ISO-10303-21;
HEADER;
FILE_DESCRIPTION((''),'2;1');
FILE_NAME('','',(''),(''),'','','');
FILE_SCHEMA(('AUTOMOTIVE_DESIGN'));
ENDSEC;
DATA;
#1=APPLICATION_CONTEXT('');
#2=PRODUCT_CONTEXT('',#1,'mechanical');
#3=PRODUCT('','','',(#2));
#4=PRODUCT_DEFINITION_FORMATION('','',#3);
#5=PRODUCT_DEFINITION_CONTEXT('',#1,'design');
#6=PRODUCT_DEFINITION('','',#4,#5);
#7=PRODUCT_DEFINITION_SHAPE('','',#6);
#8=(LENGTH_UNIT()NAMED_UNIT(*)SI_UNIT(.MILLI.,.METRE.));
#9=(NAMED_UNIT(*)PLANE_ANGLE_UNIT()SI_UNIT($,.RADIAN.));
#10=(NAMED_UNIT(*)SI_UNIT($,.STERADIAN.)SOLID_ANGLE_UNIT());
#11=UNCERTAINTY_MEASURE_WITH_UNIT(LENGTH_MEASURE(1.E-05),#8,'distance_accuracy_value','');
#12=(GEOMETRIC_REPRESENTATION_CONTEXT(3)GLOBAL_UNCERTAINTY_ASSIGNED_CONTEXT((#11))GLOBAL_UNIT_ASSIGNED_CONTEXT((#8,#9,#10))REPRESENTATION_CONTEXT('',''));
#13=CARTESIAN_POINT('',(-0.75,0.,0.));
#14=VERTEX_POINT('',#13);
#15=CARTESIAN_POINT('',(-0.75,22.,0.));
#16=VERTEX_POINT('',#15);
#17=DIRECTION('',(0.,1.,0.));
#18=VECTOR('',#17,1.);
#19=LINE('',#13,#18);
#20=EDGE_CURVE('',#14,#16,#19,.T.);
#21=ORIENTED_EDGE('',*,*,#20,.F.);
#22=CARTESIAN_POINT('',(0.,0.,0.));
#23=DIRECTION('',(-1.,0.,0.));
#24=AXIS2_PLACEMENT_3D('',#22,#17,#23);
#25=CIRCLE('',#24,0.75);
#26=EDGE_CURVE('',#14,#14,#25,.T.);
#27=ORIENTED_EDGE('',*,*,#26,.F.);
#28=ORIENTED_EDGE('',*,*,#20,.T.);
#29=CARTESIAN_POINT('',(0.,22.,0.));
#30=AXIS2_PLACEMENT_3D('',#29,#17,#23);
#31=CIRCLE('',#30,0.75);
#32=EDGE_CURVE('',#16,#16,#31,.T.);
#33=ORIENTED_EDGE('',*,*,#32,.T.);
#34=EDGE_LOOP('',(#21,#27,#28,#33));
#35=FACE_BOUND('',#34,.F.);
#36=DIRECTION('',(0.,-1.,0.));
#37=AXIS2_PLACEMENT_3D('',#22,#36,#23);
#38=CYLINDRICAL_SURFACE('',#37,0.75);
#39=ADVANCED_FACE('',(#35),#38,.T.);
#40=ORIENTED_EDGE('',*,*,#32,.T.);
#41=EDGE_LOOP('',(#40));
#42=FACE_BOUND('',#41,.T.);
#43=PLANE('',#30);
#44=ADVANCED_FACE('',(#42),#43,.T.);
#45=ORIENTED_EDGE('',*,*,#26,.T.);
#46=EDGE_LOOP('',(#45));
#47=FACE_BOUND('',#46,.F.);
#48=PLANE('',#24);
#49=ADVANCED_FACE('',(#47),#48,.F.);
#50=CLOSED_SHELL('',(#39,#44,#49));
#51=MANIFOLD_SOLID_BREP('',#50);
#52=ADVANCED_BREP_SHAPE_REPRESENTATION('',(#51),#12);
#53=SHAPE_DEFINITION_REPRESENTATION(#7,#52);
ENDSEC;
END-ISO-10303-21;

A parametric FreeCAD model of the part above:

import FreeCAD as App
import Part
import Sketcher
Q = App.Units.Quantity

doc = App.newDocument("Part")
params = doc.addObject("Spreadsheet::Sheet", "Params")
for row, (alias, value) in enumerate([
    ("sketch1_diameter", "1.5 mm"),
    ("pad1_length", "22 mm"),
], start=1):
    params.set(f"A{row}", alias)
    params.set(f"B{row}", "=" + value)
    params.setAlias(f"B{row}", alias)

body = doc.addObject("PartDesign::Body", "Body")

# Sketch on XZ plane
sketch1 = body.newObject("Sketcher::SketchObject", "Sketch")
sketch1.AttachmentSupport = (doc.getObject("XZ_Plane"), [""])
sketch1.MapMode = "FlatFace"
sketch1.addGeometry(Part.Circle(App.Vector(0, 0, 0), App.Vector(0, 0, 1), 0.8), False)
sketch1.addConstraint([
    Sketcher.Constraint("Coincident", 0, 3, -1, 1),
    Sketcher.Constraint("Diameter", 0, Q("1.5 mm")),
])
sketch1.setExpression("Constraints[1]", "Params.sketch1_diameter")
pad1 = body.newObject("PartDesign::Pad", "Pad")
pad1.Profile = sketch1
pad1.setExpression("Length", "Params.pad1_length")
pad1.Reversed = True

doc.recompute()
